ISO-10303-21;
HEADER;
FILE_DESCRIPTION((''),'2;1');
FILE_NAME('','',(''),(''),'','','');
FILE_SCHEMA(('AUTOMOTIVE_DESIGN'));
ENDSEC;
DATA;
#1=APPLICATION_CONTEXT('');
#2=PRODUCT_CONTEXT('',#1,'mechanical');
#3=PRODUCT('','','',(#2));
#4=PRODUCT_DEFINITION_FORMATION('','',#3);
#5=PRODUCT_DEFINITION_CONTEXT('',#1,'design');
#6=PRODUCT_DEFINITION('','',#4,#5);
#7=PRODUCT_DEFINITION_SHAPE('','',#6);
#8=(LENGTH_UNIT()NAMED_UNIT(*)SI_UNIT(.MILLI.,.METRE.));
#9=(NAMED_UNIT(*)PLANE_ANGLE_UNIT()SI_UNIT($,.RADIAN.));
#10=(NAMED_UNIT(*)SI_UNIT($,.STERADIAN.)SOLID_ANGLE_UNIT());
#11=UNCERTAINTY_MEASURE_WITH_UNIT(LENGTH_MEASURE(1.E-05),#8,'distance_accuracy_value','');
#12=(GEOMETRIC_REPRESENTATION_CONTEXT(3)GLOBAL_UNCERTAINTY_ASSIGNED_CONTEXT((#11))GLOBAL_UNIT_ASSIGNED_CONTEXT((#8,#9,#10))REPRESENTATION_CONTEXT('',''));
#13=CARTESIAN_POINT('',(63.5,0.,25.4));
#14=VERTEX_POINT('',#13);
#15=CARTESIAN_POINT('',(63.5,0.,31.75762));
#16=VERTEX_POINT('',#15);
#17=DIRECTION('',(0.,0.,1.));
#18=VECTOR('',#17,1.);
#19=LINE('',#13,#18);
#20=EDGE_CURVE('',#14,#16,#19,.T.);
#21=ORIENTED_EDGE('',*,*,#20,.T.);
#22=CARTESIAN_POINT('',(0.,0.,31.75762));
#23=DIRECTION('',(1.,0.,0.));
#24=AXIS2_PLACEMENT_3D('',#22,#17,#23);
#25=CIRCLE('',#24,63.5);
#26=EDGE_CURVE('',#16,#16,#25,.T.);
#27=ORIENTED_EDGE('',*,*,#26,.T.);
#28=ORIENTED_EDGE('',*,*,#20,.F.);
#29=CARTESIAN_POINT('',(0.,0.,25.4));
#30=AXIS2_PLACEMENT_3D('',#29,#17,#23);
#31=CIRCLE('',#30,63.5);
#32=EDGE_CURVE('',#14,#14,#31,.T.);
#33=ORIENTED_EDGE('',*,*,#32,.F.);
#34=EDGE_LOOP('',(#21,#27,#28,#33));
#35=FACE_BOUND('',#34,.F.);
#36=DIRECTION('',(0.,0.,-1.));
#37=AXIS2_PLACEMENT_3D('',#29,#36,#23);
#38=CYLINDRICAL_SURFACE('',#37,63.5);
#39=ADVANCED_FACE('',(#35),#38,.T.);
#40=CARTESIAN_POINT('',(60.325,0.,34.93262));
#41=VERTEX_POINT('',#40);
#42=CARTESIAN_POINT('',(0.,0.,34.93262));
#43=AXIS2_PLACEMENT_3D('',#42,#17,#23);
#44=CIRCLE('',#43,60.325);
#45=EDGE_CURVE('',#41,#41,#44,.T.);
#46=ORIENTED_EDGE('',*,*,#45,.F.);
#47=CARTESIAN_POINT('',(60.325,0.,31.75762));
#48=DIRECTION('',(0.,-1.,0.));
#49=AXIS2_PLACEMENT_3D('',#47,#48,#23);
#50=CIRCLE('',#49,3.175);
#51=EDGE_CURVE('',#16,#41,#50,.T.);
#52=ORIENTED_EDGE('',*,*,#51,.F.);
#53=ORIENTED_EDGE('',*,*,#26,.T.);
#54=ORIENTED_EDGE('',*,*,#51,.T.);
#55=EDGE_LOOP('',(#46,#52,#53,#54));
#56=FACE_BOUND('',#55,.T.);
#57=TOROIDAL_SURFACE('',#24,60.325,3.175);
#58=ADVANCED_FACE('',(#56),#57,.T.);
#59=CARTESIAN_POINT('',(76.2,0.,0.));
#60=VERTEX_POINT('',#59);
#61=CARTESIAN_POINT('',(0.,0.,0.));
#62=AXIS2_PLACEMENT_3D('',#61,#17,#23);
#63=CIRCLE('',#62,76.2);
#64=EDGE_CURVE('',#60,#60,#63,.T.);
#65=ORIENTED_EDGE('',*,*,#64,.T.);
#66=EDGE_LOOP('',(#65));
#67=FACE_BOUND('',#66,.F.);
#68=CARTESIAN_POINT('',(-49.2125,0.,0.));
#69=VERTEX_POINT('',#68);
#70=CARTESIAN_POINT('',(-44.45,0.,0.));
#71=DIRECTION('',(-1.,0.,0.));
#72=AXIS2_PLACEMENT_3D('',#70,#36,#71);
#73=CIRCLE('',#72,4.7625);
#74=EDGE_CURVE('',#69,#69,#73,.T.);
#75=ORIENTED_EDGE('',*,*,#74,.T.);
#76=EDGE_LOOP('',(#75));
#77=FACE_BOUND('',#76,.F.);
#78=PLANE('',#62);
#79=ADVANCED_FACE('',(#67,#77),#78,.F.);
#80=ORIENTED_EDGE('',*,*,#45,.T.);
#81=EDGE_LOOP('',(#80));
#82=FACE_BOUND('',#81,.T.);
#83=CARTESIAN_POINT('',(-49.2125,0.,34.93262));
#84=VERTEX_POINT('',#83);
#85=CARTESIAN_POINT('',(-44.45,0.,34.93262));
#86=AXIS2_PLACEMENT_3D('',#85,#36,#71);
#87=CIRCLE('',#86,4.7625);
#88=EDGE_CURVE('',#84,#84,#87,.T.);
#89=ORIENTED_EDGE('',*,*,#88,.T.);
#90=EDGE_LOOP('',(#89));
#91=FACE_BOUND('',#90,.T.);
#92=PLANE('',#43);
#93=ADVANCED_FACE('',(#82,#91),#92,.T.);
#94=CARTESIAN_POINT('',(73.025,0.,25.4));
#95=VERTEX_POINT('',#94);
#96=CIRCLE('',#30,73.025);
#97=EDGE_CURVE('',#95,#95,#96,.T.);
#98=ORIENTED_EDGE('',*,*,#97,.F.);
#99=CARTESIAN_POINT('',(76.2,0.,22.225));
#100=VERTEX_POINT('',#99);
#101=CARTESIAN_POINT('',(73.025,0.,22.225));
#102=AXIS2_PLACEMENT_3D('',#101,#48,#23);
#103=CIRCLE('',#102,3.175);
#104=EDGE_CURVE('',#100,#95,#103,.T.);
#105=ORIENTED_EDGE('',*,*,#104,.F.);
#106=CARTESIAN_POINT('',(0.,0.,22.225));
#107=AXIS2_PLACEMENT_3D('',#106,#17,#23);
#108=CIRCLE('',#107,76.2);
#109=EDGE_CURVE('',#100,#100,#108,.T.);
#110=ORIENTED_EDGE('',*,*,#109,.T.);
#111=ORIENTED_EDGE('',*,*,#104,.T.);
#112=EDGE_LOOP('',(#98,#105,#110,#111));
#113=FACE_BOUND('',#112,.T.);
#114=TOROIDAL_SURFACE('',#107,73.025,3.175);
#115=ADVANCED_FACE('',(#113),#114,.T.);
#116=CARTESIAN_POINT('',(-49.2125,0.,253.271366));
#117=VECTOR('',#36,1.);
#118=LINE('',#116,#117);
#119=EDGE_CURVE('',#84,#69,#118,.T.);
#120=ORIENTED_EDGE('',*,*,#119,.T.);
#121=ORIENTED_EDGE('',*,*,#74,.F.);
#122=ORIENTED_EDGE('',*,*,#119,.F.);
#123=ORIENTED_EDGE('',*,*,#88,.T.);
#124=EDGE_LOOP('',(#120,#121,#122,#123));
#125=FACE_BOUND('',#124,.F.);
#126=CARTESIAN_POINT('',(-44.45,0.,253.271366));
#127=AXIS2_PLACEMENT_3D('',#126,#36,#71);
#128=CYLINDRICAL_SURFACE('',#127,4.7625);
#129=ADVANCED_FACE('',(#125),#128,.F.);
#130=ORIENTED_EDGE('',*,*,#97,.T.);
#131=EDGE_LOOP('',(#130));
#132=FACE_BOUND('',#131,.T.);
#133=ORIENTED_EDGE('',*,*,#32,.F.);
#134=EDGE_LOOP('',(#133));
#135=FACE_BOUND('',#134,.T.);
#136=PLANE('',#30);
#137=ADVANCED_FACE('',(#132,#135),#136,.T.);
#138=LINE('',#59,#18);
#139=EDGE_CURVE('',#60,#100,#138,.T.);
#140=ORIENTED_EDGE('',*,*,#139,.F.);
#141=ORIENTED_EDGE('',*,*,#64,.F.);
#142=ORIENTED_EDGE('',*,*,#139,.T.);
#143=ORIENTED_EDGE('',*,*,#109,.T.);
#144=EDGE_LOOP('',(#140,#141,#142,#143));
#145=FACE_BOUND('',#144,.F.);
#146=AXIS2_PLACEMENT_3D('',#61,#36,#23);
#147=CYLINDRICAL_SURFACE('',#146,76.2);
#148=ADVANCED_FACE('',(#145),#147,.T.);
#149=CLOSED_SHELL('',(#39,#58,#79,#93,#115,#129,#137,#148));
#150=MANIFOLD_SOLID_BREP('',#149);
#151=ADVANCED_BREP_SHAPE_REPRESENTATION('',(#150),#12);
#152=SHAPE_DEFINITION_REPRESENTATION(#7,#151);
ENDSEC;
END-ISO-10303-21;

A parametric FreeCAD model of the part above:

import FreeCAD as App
import Part
import Sketcher
Q = App.Units.Quantity


def edges_at(feature, points):
    """Names of the edges that pass closest to the given points."""
    edges = feature.Shape.Edges
    near = lambda p: min(range(len(edges)), key=lambda i: edges[i].distToShape(Part.Vertex(*p))[0])
    return sorted({f"Edge{near(p) + 1}" for p in points})

doc = App.newDocument("Part")
body = doc.addObject("PartDesign::Body", "Body")

# Sketch on XY plane
sketch1 = doc.addObject("Sketcher::SketchObject", "Sketch")
body.addObject(sketch1)
sketch1.AttachmentSupport = (doc.XY_Plane, [""])
sketch1.MapMode = "FlatFace"
sketch1.addGeometry(Part.Circle(App.Vector(0, 0, 0), App.Vector(0, 0, 1), 76), False)
sketch1.addConstraint(Sketcher.Constraint("Coincident", 0, 3, -1, 1))
sketch1.addConstraint(Sketcher.Constraint("Diameter", 0, Q("6 in")))
pad1 = doc.addObject("PartDesign::Pad", "Pad")
body.addObject(pad1)
pad1.Profile = sketch1
pad1.Length = Q("1 in")

# Sketch on XY plane
sketch2 = doc.addObject("Sketcher::SketchObject", "Sketch001")
body.addObject(sketch2)
sketch2.AttachmentSupport = (doc.XY_Plane, [""])
sketch2.MapMode = "FlatFace"
sketch2.AttachmentOffset = App.Placement(App.Vector(0, 0, 1 * 25.4), App.Rotation())
sketch2.addGeometry(Part.Circle(App.Vector(0, 0, 0), App.Vector(0, 0, 1), 64), False)
sketch2.addConstraint(Sketcher.Constraint("Coincident", 0, 3, -1, 1))
sketch2.addConstraint(Sketcher.Constraint("Diameter", 0, Q("5 in")))
pad2 = doc.addObject("PartDesign::Pad", "Pad001")
body.addObject(pad2)
pad2.Profile = sketch2
pad2.Length = Q("0.3753 in")
doc.recompute()

fillet = doc.addObject("PartDesign::Fillet", "Fillet")
body.addObject(fillet)
fillet.Base = (pad2, edges_at(pad2, [(-76.2, 0, 25.4), (-63.5, 0, 34.933)]))
fillet.Radius = Q("0.125 in")

# Sketch on XY plane
sketch3 = doc.addObject("Sketcher::SketchObject", "Sketch002")
body.addObject(sketch3)
sketch3.AttachmentSupport = (doc.XY_Plane, [""])
sketch3.MapMode = "FlatFace"
sketch3.AttachmentOffset = App.Placement(App.Vector(0, 0, 1.3753 * 25.4), App.Rotation())
sketch3.addGeometry(Part.Circle(App.Vector(-44.5, 0, 0), App.Vector(0, 0, 1), 4.8), False)
sketch3.addConstraint(Sketcher.Constraint("PointOnObject", 0, 3, -1))
sketch3.addConstraint(Sketcher.Constraint("Diameter", 0, Q("0.375 in")))
sketch3.addConstraint(Sketcher.Constraint("DistanceX", 0, 3, -1, 1, Q("1.75 in")))
doc.recompute()
hole = doc.addObject("PartDesign::Hole", "Hole")
body.addObject(hole)
hole.Profile = sketch3
hole.ThreadType = "None"
hole.Diameter = Q("0.375 in")
hole.DepthType = "ThroughAll"

doc.recompute()
